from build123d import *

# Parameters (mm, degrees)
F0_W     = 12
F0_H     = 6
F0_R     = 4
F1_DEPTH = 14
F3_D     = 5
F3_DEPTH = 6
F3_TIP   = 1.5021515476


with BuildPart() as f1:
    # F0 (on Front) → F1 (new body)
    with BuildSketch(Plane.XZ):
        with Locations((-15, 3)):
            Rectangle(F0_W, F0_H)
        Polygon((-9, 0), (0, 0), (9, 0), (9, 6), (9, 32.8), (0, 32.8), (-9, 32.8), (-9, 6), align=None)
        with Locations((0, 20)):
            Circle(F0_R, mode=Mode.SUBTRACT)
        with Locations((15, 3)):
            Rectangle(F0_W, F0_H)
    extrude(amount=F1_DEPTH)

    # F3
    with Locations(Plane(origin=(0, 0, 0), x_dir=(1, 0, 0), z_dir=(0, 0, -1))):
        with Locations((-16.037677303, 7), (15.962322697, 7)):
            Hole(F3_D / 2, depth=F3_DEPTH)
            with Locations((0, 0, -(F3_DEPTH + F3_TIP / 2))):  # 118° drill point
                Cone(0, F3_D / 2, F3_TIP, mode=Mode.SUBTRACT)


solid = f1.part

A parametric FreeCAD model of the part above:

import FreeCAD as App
import Part
import Sketcher

V = App.Vector


def add_polygon(sketch, points):
    """Adds a closed chain of lines whose ends are joined by coincident constraints."""
    first, n = sketch.GeometryCount, len(points)
    for a, b in zip(points, points[1:] + points[:1]):
        sketch.addGeometry(Part.LineSegment(App.Vector(*a, 0), App.Vector(*b, 0)), False)
    for i in range(n):
        sketch.addConstraint(Sketcher.Constraint("Coincident", first + i, 2, first + (i + 1) % n, 1))

doc = App.newDocument("Part")
params = doc.addObject("Spreadsheet::Sheet", "Params")
for row, (alias, value) in enumerate([
    ("sketch1_diameter", "8 mm"),
    ("sketch1_width", "42 mm"),
    ("sketch1_width2", "12 mm"),
    ("sketch1_height", "6 mm"),
    ("sketch1_height2", "26.8 mm"),
    ("pad1_length", "14 mm"),
    ("sketch2_diameter", "5 mm"),
    ("hole_diameter", "5 mm"),
    ("hole_depth", "6 mm"),
], start=1):
    params.set(f"A{row}", alias)
    params.set(f"B{row}", "=" + value)
    params.setAlias(f"B{row}", alias)

body = doc.addObject("PartDesign::Body", "Body")

# Sketch on XZ plane
sketch1 = body.newObject("Sketcher::SketchObject", "Sketch")
sketch1.AttachmentSupport = (doc.getObject("XZ_Plane"), [""])
sketch1.MapMode = "FlatFace"
add_polygon(sketch1, [(-21, 6), (-21, 0), (21, 0), (21, 6), (9, 6), (9, 32.8), (-9, 32.8), (-9, 6)])  # lines 0-7
sketch1.addGeometry(Part.Circle(V(0, 20, 0), V(0, 0, 1), 4), False)  # 8
sketch1.addConstraint([
    Sketcher.Constraint("Vertical", 0),
    Sketcher.Constraint("Horizontal", 1),
    Sketcher.Constraint("Vertical", 2),
    Sketcher.Constraint("Horizontal", 3),
    Sketcher.Constraint("Vertical", 4),
    Sketcher.Constraint("Horizontal", 5),
    Sketcher.Constraint("Vertical", 6),
    Sketcher.Constraint("Horizontal", 7),
    Sketcher.Constraint("Symmetric", 0, 2, 1, 2, -1, 1),
    Sketcher.Constraint("Symmetric", 3, 2, 6, 2, -2),
    Sketcher.Constraint("PointOnObject", 8, 3, -2),
    Sketcher.Constraint("Diameter", 8, 8.0),
    Sketcher.Constraint("DistanceX", 1, 1, 1, 2, 42.0),
    Sketcher.Constraint("DistanceX", 3, 2, 3, 1, 12.0),
    Sketcher.Constraint("DistanceY", 0, 2, 0, 1, 6.0),
    Sketcher.Constraint("DistanceY", 4, 1, 4, 2, 26.8),
    Sketcher.Constraint("DistanceY", -1, 1, 8, 3, 20.0),
])
sketch1.setExpression("Constraints[19]", "Params.sketch1_diameter")
sketch1.setExpression("Constraints[20]", "Params.sketch1_width")
sketch1.setExpression("Constraints[21]", "Params.sketch1_width2")
sketch1.setExpression("Constraints[22]", "Params.sketch1_height")
sketch1.setExpression("Constraints[23]", "Params.sketch1_height2")
pad1 = body.newObject("PartDesign::Pad", "Pad")
pad1.Profile = sketch1
pad1.setExpression("Length", "Params.pad1_length")

# Sketch on XY plane
sketch2 = body.newObject("Sketcher::SketchObject", "Sketch001")
sketch2.AttachmentSupport = (doc.getObject("XY_Plane"), [""])
sketch2.MapMode = "FlatFace"
sketch2.addGeometry([
    Part.Circle(V(-16, -7, 0), V(0, 0, 1), 2.5),
    Part.Circle(V(16, -7, 0), V(0, 0, 1), 2.5),
], False)
sketch2.addConstraint([
    Sketcher.Constraint("Equal", 0, 1),
    Sketcher.Constraint("Horizontal", 0, 3, 1, 3),
    Sketcher.Constraint("Diameter", 0, 5.0),
    Sketcher.Constraint("DistanceY", 0, 3, -1, 1, 7.0),
    Sketcher.Constraint("DistanceX", 0, 3, 1, 3, 32.0),
    Sketcher.Constraint("DistanceX", 0, 3, -1, 1, 16.037677),
])
sketch2.setExpression("Constraints[2]", "Params.sketch2_diameter")
doc.recompute()
hole = body.newObject("PartDesign::Hole", "Hole")
hole.Profile = sketch2
hole.ThreadType = "None"
hole.setExpression("Diameter", "Params.hole_diameter")
hole.DepthType = "Dimension"
hole.setExpression("Depth", "Params.hole_depth")
hole.DrillPoint = "Angled"
hole.DrillPointAngle = 118
hole.Reversed = True

doc.recompute()
